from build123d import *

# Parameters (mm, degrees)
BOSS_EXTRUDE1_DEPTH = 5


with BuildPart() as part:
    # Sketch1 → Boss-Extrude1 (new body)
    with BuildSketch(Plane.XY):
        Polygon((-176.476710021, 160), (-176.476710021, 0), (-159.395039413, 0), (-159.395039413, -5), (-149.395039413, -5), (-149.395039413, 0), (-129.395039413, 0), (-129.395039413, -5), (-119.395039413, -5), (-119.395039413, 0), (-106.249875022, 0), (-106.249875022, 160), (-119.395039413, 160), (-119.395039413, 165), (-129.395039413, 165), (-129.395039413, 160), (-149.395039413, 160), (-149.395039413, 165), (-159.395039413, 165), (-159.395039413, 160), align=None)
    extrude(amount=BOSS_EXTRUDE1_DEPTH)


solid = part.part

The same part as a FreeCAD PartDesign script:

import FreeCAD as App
import Part
import Sketcher

doc = App.newDocument("Part")
body = doc.addObject("PartDesign::Body", "Body")

# Sketch on XY plane
sketch1 = doc.addObject("Sketcher::SketchObject", "Sketch")
body.addObject(sketch1)
sketch1.AttachmentSupport = (doc.XY_Plane, [""])
sketch1.MapMode = "FlatFace"
sketch1.addGeometry(Part.LineSegment(App.Vector(-176.47671, 160, 0), App.Vector(-176.47671, 0, 0)), False)
sketch1.addGeometry(Part.LineSegment(App.Vector(-176.47671, 0, 0), App.Vector(-159.395039, 0, 0)), False)
sketch1.addGeometry(Part.LineSegment(App.Vector(-159.395039, 0, 0), App.Vector(-159.395039, -5, 0)), False)
sketch1.addGeometry(Part.LineSegment(App.Vector(-159.395039, -5, 0), App.Vector(-149.395039, -5, 0)), False)
sketch1.addGeometry(Part.LineSegment(App.Vector(-149.395039, -5, 0), App.Vector(-149.395039, 0, 0)), False)
sketch1.addGeometry(Part.LineSegment(App.Vector(-149.395039, 0, 0), App.Vector(-129.395039, 0, 0)), False)
sketch1.addGeometry(Part.LineSegment(App.Vector(-129.395039, 0, 0), App.Vector(-129.395039, -5, 0)), False)
sketch1.addGeometry(Part.LineSegment(App.Vector(-129.395039, -5, 0), App.Vector(-119.395039, -5, 0)), False)
sketch1.addGeometry(Part.LineSegment(App.Vector(-119.395039, -5, 0), App.Vector(-119.395039, 0, 0)), False)
sketch1.addGeometry(Part.LineSegment(App.Vector(-119.395039, 0, 0), App.Vector(-106.249875, 0, 0)), False)
sketch1.addGeometry(Part.LineSegment(App.Vector(-106.249875, 0, 0), App.Vector(-106.249875, 160, 0)), False)
sketch1.addGeometry(Part.LineSegment(App.Vector(-106.249875, 160, 0), App.Vector(-119.395039, 160, 0)), False)
sketch1.addGeometry(Part.LineSegment(App.Vector(-119.395039, 160, 0), App.Vector(-119.395039, 165, 0)), False)
sketch1.addGeometry(Part.LineSegment(App.Vector(-119.395039, 165, 0), App.Vector(-129.395039, 165, 0)), False)
sketch1.addGeometry(Part.LineSegment(App.Vector(-129.395039, 165, 0), App.Vector(-129.395039, 160, 0)), False)
sketch1.addGeometry(Part.LineSegment(App.Vector(-129.395039, 160, 0), App.Vector(-149.395039, 160, 0)), False)
sketch1.addGeometry(Part.LineSegment(App.Vector(-149.395039, 160, 0), App.Vector(-149.395039, 165, 0)), False)
sketch1.addGeometry(Part.LineSegment(App.Vector(-149.395039, 165, 0), App.Vector(-159.395039, 165, 0)), False)
sketch1.addGeometry(Part.LineSegment(App.Vector(-159.395039, 165, 0), App.Vector(-159.395039, 160, 0)), False)
sketch1.addGeometry(Part.LineSegment(App.Vector(-159.395039, 160, 0), App.Vector(-176.47671, 160, 0)), False)
sketch1.addConstraint(Sketcher.Constraint("Coincident", 0, 2, 1, 1))
sketch1.addConstraint(Sketcher.Constraint("Coincident", 1, 2, 2, 1))
sketch1.addConstraint(Sketcher.Constraint("Coincident", 2, 2, 3, 1))
sketch1.addConstraint(Sketcher.Constraint("Coincident", 3, 2, 4, 1))
sketch1.addConstraint(Sketcher.Constraint("Coincident", 4, 2, 5, 1))
sketch1.addConstraint(Sketcher.Constraint("Coincident", 5, 2, 6, 1))
sketch1.addConstraint(Sketcher.Constraint("Coincident", 6, 2, 7, 1))
sketch1.addConstraint(Sketcher.Constraint("Coincident", 7, 2, 8, 1))
sketch1.addConstraint(Sketcher.Constraint("Coincident", 8, 2, 9, 1))
sketch1.addConstraint(Sketcher.Constraint("Coincident", 9, 2, 10, 1))
sketch1.addConstraint(Sketcher.Constraint("Coincident", 10, 2, 11, 1))
sketch1.addConstraint(Sketcher.Constraint("Coincident", 11, 2, 12, 1))
sketch1.addConstraint(Sketcher.Constraint("Coincident", 12, 2, 13, 1))
sketch1.addConstraint(Sketcher.Constraint("Coincident", 13, 2, 14, 1))
sketch1.addConstraint(Sketcher.Constraint("Coincident", 14, 2, 15, 1))
sketch1.addConstraint(Sketcher.Constraint("Coincident", 15, 2, 16, 1))
sketch1.addConstraint(Sketcher.Constraint("Coincident", 16, 2, 17, 1))
sketch1.addConstraint(Sketcher.Constraint("Coincident", 17, 2, 18, 1))
sketch1.addConstraint(Sketcher.Constraint("Coincident", 18, 2, 19, 1))
sketch1.addConstraint(Sketcher.Constraint("Coincident", 19, 2, 0, 1))
sketch1.addConstraint(Sketcher.Constraint("Vertical", 0))
sketch1.addConstraint(Sketcher.Constraint("Horizontal", 1))
sketch1.addConstraint(Sketcher.Constraint("Vertical", 2))
sketch1.addConstraint(Sketcher.Constraint("Horizontal", 3))
sketch1.addConstraint(Sketcher.Constraint("Vertical", 4))
sketch1.addConstraint(Sketcher.Constraint("Horizontal", 5))
sketch1.addConstraint(Sketcher.Constraint("Vertical", 6))
sketch1.addConstraint(Sketcher.Constraint("Horizontal", 7))
sketch1.addConstraint(Sketcher.Constraint("Vertical", 8))
sketch1.addConstraint(Sketcher.Constraint("Horizontal", 9))
sketch1.addConstraint(Sketcher.Constraint("Vertical", 10))
sketch1.addConstraint(Sketcher.Constraint("Horizontal", 11))
sketch1.addConstraint(Sketcher.Constraint("Vertical", 12))
sketch1.addConstraint(Sketcher.Constraint("Horizontal", 13))
sketch1.addConstraint(Sketcher.Constraint("Vertical", 14))
sketch1.addConstraint(Sketcher.Constraint("Horizontal", 15))
sketch1.addConstraint(Sketcher.Constraint("Vertical", 16))
sketch1.addConstraint(Sketcher.Constraint("Horizontal", 17))
sketch1.addConstraint(Sketcher.Constraint("Vertical", 18))
sketch1.addConstraint(Sketcher.Constraint("Horizontal", 19))
sketch1.addConstraint(Sketcher.Constraint("PointOnObject", 0, 2, -1))
sketch1.addConstraint(Sketcher.Constraint("PointOnObject", 4, 2, -1))
sketch1.addConstraint(Sketcher.Constraint("PointOnObject", 8, 2, -1))
sketch1.addConstraint(Sketcher.Constraint("Horizontal", 3, 2, 6, 2))
sketch1.addConstraint(Sketcher.Constraint("Horizontal", 11, 2, 14, 2))
sketch1.addConstraint(Sketcher.Constraint("Horizontal", 13, 2, 16, 2))
sketch1.addConstraint(Sketcher.Constraint("Horizontal", 15, 2, 18, 2))
sketch1.addConstraint(Sketcher.Constraint("Vertical", 8, 2, 11, 2))
sketch1.addConstraint(Sketcher.Constraint("Vertical", 6, 2, 13, 2))
sketch1.addConstraint(Sketcher.Constraint("Vertical", 4, 2, 15, 2))
sketch1.addConstraint(Sketcher.Constraint("Vertical", 2, 2, 17, 2))
sketch1.addConstraint(Sketcher.Constraint("Equal", 3, 7))
sketch1.addConstraint(Sketcher.Constraint("Equal", 8, 12))
sketch1.addConstraint(Sketcher.Constraint("DistanceX", 3, 1, 3, 2, 10.0))
sketch1.addConstraint(Sketcher.Constraint("DistanceX", 5, 1, 5, 2, 20.0))
sketch1.addConstraint(Sketcher.Constraint("DistanceY", 0, 2, 0, 1, 160.0))
sketch1.addConstraint(Sketcher.Constraint("DistanceY", 2, 2, 2, 1, 5.0))
sketch1.addConstraint(Sketcher.Constraint("DistanceX", 1, 1, 1, 2, 17.081671))
sketch1.addConstraint(Sketcher.Constraint("DistanceX", 9, 1, 9, 2, 13.145164))
sketch1.addConstraint(Sketcher.Constraint("DistanceX", 0, 2, -1, 1, 176.47671))
pad1 = doc.addObject("PartDesign::Pad", "Pad")
body.addObject(pad1)
pad1.Profile = sketch1
pad1.Length = 5

doc.recompute()
